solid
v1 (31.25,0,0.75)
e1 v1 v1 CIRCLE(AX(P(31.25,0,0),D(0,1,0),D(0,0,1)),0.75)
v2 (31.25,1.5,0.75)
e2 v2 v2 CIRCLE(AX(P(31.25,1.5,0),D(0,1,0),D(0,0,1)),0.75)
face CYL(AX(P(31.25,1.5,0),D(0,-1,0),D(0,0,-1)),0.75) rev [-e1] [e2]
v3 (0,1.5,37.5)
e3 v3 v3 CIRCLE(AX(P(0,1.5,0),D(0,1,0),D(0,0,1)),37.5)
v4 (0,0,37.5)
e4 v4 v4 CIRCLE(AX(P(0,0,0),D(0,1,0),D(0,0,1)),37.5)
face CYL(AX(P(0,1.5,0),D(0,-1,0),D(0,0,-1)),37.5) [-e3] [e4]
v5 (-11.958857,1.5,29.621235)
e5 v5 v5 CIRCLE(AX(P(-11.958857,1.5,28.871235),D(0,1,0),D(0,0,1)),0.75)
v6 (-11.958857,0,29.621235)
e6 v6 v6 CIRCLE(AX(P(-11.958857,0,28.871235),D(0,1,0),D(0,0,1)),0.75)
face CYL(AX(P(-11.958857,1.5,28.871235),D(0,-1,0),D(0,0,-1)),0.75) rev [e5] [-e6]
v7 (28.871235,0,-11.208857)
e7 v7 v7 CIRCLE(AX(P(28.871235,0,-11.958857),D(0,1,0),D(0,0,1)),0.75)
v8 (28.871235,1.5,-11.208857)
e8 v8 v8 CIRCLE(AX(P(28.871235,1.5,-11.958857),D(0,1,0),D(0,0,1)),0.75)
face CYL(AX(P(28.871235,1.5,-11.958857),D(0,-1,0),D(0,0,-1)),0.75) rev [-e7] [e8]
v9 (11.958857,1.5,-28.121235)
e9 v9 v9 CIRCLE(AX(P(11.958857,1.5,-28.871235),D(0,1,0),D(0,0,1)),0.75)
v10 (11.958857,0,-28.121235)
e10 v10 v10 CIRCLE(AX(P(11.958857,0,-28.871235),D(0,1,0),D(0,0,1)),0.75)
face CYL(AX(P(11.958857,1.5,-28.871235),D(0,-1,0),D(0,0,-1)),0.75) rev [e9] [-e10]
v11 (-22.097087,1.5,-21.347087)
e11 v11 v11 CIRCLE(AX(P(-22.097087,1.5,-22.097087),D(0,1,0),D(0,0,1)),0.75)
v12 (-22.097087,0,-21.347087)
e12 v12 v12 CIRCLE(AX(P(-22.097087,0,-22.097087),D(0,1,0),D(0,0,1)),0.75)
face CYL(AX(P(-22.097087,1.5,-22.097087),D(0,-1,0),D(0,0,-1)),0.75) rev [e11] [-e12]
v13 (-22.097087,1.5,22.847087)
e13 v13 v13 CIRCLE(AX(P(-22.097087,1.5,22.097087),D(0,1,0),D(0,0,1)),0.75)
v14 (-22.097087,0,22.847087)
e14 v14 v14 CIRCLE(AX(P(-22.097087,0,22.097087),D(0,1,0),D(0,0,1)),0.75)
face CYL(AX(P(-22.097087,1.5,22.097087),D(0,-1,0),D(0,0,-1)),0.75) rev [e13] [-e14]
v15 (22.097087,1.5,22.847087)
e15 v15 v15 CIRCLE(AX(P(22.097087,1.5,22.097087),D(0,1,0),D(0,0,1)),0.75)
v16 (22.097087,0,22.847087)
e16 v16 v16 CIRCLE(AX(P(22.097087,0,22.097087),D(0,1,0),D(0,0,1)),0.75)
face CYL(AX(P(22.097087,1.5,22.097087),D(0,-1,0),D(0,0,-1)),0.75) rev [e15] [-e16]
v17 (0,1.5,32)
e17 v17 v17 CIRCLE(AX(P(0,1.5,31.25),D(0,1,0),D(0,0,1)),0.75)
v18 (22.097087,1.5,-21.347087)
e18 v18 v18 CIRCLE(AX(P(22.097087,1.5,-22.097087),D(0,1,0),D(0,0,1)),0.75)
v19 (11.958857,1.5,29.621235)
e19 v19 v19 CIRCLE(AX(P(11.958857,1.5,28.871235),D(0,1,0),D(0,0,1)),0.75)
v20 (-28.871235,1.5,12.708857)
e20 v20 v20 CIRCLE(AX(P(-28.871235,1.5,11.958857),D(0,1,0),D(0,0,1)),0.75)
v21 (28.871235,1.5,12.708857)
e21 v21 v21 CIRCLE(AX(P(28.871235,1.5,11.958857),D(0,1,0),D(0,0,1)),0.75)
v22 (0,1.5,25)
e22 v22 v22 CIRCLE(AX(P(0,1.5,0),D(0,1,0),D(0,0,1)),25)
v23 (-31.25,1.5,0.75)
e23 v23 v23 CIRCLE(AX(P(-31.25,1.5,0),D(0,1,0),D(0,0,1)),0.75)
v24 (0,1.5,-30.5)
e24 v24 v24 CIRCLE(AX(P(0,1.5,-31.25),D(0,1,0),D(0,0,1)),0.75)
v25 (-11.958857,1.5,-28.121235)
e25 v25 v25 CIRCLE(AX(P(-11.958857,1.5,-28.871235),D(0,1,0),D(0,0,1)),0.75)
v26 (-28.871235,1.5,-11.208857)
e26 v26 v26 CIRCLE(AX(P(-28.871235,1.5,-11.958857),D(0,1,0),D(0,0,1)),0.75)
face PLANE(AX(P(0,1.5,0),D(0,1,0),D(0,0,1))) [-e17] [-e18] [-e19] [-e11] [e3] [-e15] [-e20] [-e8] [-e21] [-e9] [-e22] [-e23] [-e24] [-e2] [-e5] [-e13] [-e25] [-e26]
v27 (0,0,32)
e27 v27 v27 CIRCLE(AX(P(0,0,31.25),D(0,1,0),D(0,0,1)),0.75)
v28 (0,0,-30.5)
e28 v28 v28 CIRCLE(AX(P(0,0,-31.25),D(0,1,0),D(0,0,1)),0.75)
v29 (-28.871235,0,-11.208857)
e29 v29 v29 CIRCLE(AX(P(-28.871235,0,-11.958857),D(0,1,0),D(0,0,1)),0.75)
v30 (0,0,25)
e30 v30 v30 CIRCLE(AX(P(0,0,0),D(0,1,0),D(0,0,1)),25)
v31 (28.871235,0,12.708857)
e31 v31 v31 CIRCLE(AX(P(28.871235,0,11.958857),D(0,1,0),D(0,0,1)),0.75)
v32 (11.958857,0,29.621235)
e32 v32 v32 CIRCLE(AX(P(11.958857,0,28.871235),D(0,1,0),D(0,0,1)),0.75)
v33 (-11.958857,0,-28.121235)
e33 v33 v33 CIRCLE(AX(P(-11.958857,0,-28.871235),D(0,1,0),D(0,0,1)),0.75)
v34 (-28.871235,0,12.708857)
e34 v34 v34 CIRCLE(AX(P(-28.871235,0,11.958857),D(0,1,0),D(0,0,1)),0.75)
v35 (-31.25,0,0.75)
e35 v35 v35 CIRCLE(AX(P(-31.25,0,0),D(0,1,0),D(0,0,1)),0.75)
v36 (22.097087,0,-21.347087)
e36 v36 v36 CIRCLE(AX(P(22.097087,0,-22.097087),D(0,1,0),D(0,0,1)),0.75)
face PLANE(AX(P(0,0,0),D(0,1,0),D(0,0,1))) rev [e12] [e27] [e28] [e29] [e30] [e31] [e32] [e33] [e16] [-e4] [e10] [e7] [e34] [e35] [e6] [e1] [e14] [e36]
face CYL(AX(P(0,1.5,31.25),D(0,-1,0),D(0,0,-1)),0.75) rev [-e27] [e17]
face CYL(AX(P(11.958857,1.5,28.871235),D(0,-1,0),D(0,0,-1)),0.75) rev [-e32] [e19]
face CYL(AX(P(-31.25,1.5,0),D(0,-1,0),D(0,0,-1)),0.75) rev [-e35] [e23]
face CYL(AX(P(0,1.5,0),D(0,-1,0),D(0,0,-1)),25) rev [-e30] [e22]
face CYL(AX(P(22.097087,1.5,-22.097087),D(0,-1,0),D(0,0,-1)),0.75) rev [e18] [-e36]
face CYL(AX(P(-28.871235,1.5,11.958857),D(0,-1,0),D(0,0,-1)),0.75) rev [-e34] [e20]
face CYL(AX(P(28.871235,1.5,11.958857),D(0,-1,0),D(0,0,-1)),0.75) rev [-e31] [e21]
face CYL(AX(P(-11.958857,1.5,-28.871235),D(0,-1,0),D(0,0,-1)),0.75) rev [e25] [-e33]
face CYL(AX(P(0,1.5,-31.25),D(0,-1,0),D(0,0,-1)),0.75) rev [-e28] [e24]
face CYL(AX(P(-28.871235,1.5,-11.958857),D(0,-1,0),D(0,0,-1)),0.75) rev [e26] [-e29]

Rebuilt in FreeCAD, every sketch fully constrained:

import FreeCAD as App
import Part
import Sketcher
Q = App.Units.Quantity

doc = App.newDocument("Part")
params = doc.addObject("Spreadsheet::Sheet", "Params")
for row, (alias, value) in enumerate([
    ("sketch1_diameter", "75 mm"),
    ("sketch1_diameter2", "50 mm"),
    ("sketch1_diameter3", "1.5 mm"),
    ("pad1_length", "1.5 mm"),
], start=1):
    params.set(f"A{row}", alias)
    params.set(f"B{row}", "=" + value)
    params.setAlias(f"B{row}", alias)

body = doc.addObject("PartDesign::Body", "Body")

# Sketch on XZ plane
sketch1 = body.newObject("Sketcher::SketchObject", "Sketch")
sketch1.AttachmentSupport = (doc.getObject("XZ_Plane"), [""])
sketch1.MapMode = "FlatFace"
sketch1.addGeometry([
    Part.Circle(App.Vector(0, 0, 0), App.Vector(0, 0, 1), 37.5),  # 0
    Part.Circle(App.Vector(-22.097087, -22.097087, 0), App.Vector(0, 0, 1), 0.75),  # 1
    Part.Circle(App.Vector(-28.871235, -11.958857, 0), App.Vector(0, 0, 1), 0.75),  # 2
    Part.Circle(App.Vector(-11.958857, -28.871235, 0), App.Vector(0, 0, 1), 0.75),  # 3
    Part.Circle(App.Vector(0, -31.25, 0), App.Vector(0, 0, 1), 0.75),  # 4
    Part.Circle(App.Vector(-31.25, 0, 0), App.Vector(0, 0, 1), 0.75),  # 5
    Part.Circle(App.Vector(-28.871235, 11.958857, 0), App.Vector(0, 0, 1), 0.75),  # 6
    Part.Circle(App.Vector(-22.097087, 22.097087, 0), App.Vector(0, 0, 1), 0.75),  # 7
    Part.Circle(App.Vector(-11.958857, 28.871235, 0), App.Vector(0, 0, 1), 0.75),  # 8
    Part.Circle(App.Vector(11.958857, -28.871235, 0), App.Vector(0, 0, 1), 0.75),  # 9
    Part.Circle(App.Vector(22.097087, -22.097087, 0), App.Vector(0, 0, 1), 0.75),  # 10
    Part.Circle(App.Vector(28.871235, -11.958857, 0), App.Vector(0, 0, 1), 0.75),  # 11
    Part.Circle(App.Vector(31.25, 0, 0), App.Vector(0, 0, 1), 0.75),  # 12
    Part.Circle(App.Vector(0, 0, 0), App.Vector(0, 0, 1), 25),  # 13
    Part.Circle(App.Vector(0, 31.25, 0), App.Vector(0, 0, 1), 0.75),  # 14
    Part.Circle(App.Vector(11.958857, 28.871235, 0), App.Vector(0, 0, 1), 0.75),  # 15
    Part.Circle(App.Vector(28.871235, 11.958857, 0), App.Vector(0, 0, 1), 0.75),  # 16
    Part.Circle(App.Vector(22.097087, 22.097087, 0), App.Vector(0, 0, 1), 0.75),  # 17
], False)
sketch1.addConstraint([
    Sketcher.Constraint("Coincident", 0, 3, -1, 1),
    Sketcher.Constraint("Coincident", 13, 3, -1, 1),
    Sketcher.Constraint("Equal", 1, 2),
    Sketcher.Constraint("Equal", 2, 3),
    Sketcher.Constraint("Equal", 3, 4),
    Sketcher.Constraint("Equal", 4, 5),
    Sketcher.Constraint("Equal", 5, 6),
    Sketcher.Constraint("Equal", 6, 7),
    Sketcher.Constraint("Equal", 7, 8),
    Sketcher.Constraint("Equal", 8, 9),
    Sketcher.Constraint("Equal", 9, 10),
    Sketcher.Constraint("Equal", 10, 11),
    Sketcher.Constraint("Equal", 11, 12),
    Sketcher.Constraint("Equal", 12, 14),
    Sketcher.Constraint("Equal", 14, 15),
    Sketcher.Constraint("Equal", 15, 16),
    Sketcher.Constraint("Equal", 16, 17),
    Sketcher.Constraint("Symmetric", 8, 3, 9, 3, -1, 1),
    Sketcher.Constraint("Symmetric", 7, 3, 10, 3, -1, 1),
    Sketcher.Constraint("Symmetric", 6, 3, 11, 3, -1, 1),
    Sketcher.Constraint("Symmetric", 5, 3, 12, 3, -1, 1),
    Sketcher.Constraint("Symmetric", 4, 3, 14, 3, -1, 1),
    Sketcher.Constraint("Symmetric", 3, 3, 15, 3, -1, 1),
    Sketcher.Constraint("Symmetric", 2, 3, 16, 3, -1, 1),
    Sketcher.Constraint("Symmetric", 1, 3, 17, 3, -1, 1),
    Sketcher.Constraint("Symmetric", 3, 3, 9, 3, -2),
    Sketcher.Constraint("Symmetric", 1, 3, 10, 3, -2),
    Sketcher.Constraint("Symmetric", 2, 3, 11, 3, -2),
    Sketcher.Constraint("PointOnObject", 4, 3, -2),
    Sketcher.Constraint("PointOnObject", 5, 3, -1),
    Sketcher.Constraint("Diameter", 0, Q("75 mm")),
    Sketcher.Constraint("Diameter", 13, Q("50 mm")),
    Sketcher.Constraint("Diameter", 1, Q("1.5 mm")),
    Sketcher.Constraint("DistanceY", 4, 3, -1, 1, Q("31.25 mm")),
    Sketcher.Constraint("DistanceX", 5, 3, -1, 1, Q("31.25 mm")),
    Sketcher.Constraint("DistanceX", 2, 3, 1, 3, Q("6.774148 mm")),
    Sketcher.Constraint("DistanceY", 1, 3, 2, 3, Q("10.13823 mm")),
    Sketcher.Constraint("DistanceX", 1, 3, 3, 3, Q("10.13823 mm")),
    Sketcher.Constraint("DistanceY", 3, 3, 1, 3, Q("6.774148 mm")),
    Sketcher.Constraint("DistanceX", 1, 3, -1, 1, Q("22.097087 mm")),
    Sketcher.Constraint("DistanceY", 1, 3, -1, 1, Q("22.097087 mm")),
])
sketch1.setExpression("Constraints[30]", "Params.sketch1_diameter")
sketch1.setExpression("Constraints[31]", "Params.sketch1_diameter2")
sketch1.setExpression("Constraints[32]", "Params.sketch1_diameter3")
pad1 = body.newObject("PartDesign::Pad", "Pad")
pad1.Profile = sketch1
pad1.setExpression("Length", "Params.pad1_length")
pad1.Reversed = True

doc.recompute()
